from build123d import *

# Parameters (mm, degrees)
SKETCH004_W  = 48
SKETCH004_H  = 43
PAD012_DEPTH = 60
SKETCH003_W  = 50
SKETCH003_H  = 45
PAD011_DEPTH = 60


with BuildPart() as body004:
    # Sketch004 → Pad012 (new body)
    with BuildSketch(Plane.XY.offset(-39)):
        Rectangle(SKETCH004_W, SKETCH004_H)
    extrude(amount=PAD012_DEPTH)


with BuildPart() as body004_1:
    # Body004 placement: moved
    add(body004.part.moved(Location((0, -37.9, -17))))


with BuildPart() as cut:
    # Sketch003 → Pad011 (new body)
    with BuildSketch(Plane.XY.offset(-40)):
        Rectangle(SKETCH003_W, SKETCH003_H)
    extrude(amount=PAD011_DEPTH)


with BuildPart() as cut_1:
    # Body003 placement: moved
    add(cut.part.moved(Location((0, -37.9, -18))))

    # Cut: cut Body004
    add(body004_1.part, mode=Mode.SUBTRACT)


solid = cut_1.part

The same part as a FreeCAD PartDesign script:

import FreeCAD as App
import Part
import Sketcher
Q = App.Units.Quantity

doc = App.newDocument("Part")
body = doc.addObject("PartDesign::Body", "Body")

sketch1 = body.newObject("Sketcher::SketchObject", "Sketch")
sketch1.AttachmentSupport = (doc.getObject("XY_Plane"), [""])
sketch1.MapMode = "FlatFace"
sketch1.AttachmentOffset = App.Placement(App.Vector(0, 0, -39), App.Rotation())
sketch1.addGeometry(Part.LineSegment(App.Vector(-24, 22, 0), App.Vector(-24, -22, 0)), False)
sketch1.addGeometry(Part.LineSegment(App.Vector(-24, -22, 0), App.Vector(24, -22, 0)), False)
sketch1.addGeometry(Part.LineSegment(App.Vector(24, -22, 0), App.Vector(24, 22, 0)), False)
sketch1.addGeometry(Part.LineSegment(App.Vector(24, 22, 0), App.Vector(-24, 22, 0)), False)
sketch1.addConstraint(Sketcher.Constraint("Coincident", 0, 2, 1, 1))
sketch1.addConstraint(Sketcher.Constraint("Coincident", 1, 2, 2, 1))
sketch1.addConstraint(Sketcher.Constraint("Coincident", 2, 2, 3, 1))
sketch1.addConstraint(Sketcher.Constraint("Coincident", 3, 2, 0, 1))
sketch1.addConstraint(Sketcher.Constraint("Vertical", 0))
sketch1.addConstraint(Sketcher.Constraint("Horizontal", 1))
sketch1.addConstraint(Sketcher.Constraint("Vertical", 2))
sketch1.addConstraint(Sketcher.Constraint("Horizontal", 3))
sketch1.addConstraint(Sketcher.Constraint("Symmetric", 0, 2, 2, 2, -1, 1))
sketch1.addConstraint(Sketcher.Constraint("DistanceX", 1, 1, 1, 2, Q("48 mm")))
sketch1.addConstraint(Sketcher.Constraint("DistanceY", 0, 2, 0, 1, Q("43 mm")))
pad1 = body.newObject("PartDesign::Pad", "Pad")
pad1.Profile = sketch1
pad1.Length = 60
body2 = doc.addObject("PartDesign::Body", "Body001")
doc.recompute()

body.Placement = App.Placement(App.Vector(0, -37.9, -17), App.Rotation(App.Vector(0, 0, 1), 0))
boolean = body2.newObject("PartDesign::Boolean", "Boolean")
boolean.Type = "Fuse"
boolean.addObjects([body])
body3 = doc.addObject("PartDesign::Body", "Body002")

sketch2 = body3.newObject("Sketcher::SketchObject", "Sketch001")
sketch2.AttachmentSupport = (doc.getObject("XY_Plane002"), [""])
sketch2.MapMode = "FlatFace"
sketch2.AttachmentOffset = App.Placement(App.Vector(0, 0, -40), App.Rotation())
sketch2.addGeometry(Part.LineSegment(App.Vector(-25, 22, 0), App.Vector(-25, -22, 0)), False)
sketch2.addGeometry(Part.LineSegment(App.Vector(-25, -22, 0), App.Vector(25, -22, 0)), False)
sketch2.addGeometry(Part.LineSegment(App.Vector(25, -22, 0), App.Vector(25, 22, 0)), False)
sketch2.addGeometry(Part.LineSegment(App.Vector(25, 22, 0), App.Vector(-25, 22, 0)), False)
sketch2.addConstraint(Sketcher.Constraint("Coincident", 0, 2, 1, 1))
sketch2.addConstraint(Sketcher.Constraint("Coincident", 1, 2, 2, 1))
sketch2.addConstraint(Sketcher.Constraint("Coincident", 2, 2, 3, 1))
sketch2.addConstraint(Sketcher.Constraint("Coincident", 3, 2, 0, 1))
sketch2.addConstraint(Sketcher.Constraint("Vertical", 0))
sketch2.addConstraint(Sketcher.Constraint("Horizontal", 1))
sketch2.addConstraint(Sketcher.Constraint("Vertical", 2))
sketch2.addConstraint(Sketcher.Constraint("Horizontal", 3))
sketch2.addConstraint(Sketcher.Constraint("Symmetric", 0, 2, 2, 2, -1, 1))
sketch2.addConstraint(Sketcher.Constraint("DistanceX", 1, 1, 1, 2, Q("50 mm")))
sketch2.addConstraint(Sketcher.Constraint("DistanceY", 0, 2, 0, 1, Q("45 mm")))
pad2 = body3.newObject("PartDesign::Pad", "Pad001")
pad2.Profile = sketch2
pad2.Length = 60
body4 = doc.addObject("PartDesign::Body", "Body003")
doc.recompute()

body3.Placement = App.Placement(App.Vector(0, -37.9, -18), App.Rotation(App.Vector(0, 0, 1), 0))
boolean2 = body4.newObject("PartDesign::Boolean", "Boolean001")
boolean2.Type = "Fuse"
boolean2.addObjects([body3])
doc.recompute()

boolean3 = body4.newObject("PartDesign::Boolean", "Boolean002")
boolean3.Type = "Cut"
boolean3.addObjects([body2])

doc.recompute()
